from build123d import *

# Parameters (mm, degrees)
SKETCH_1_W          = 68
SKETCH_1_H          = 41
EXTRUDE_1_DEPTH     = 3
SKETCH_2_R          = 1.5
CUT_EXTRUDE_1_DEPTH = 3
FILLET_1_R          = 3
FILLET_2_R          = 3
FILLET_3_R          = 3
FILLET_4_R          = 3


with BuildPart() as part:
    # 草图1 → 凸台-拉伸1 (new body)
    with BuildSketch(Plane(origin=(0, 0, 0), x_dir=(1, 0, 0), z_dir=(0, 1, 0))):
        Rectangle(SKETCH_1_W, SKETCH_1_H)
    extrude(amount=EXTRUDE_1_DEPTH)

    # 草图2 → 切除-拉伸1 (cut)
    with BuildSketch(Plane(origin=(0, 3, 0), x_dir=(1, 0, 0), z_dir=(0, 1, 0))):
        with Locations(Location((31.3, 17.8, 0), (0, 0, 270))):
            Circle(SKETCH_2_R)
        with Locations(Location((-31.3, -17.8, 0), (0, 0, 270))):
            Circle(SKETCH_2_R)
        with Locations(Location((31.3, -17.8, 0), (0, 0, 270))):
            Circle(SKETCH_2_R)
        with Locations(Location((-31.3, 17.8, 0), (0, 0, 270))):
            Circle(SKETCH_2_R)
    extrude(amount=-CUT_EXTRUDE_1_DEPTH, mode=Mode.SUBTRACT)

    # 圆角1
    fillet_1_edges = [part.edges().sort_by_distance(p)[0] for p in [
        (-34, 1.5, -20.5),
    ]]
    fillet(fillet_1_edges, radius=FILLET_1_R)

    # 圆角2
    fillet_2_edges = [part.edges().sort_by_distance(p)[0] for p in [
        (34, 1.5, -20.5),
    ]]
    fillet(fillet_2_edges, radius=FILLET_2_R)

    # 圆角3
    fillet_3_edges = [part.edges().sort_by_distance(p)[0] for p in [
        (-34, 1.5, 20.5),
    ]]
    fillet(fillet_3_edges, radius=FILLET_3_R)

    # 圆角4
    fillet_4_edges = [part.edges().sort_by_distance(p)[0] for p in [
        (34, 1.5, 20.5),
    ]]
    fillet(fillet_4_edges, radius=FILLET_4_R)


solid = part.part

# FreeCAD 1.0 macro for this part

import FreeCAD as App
import Part
import Sketcher
from FreeCAD import Vector
Q = App.Units.Quantity


def edges_at(feature, points):
    """Names of the edges that pass closest to the given points."""
    edges = feature.Shape.Edges
    near = lambda p: min(range(len(edges)), key=lambda i: edges[i].distToShape(Part.Vertex(*p))[0])
    return sorted({f"Edge{near(p) + 1}" for p in points})


def add_polygon(sketch, points):
    """Adds a closed chain of lines whose ends are joined by coincident constraints."""
    first, n = sketch.GeometryCount, len(points)
    for a, b in zip(points, points[1:] + points[:1]):
        sketch.addGeometry(Part.LineSegment(App.Vector(*a, 0), App.Vector(*b, 0)), False)
    for i in range(n):
        sketch.addConstraint(Sketcher.Constraint("Coincident", first + i, 2, first + (i + 1) % n, 1))

doc = App.newDocument("Part")
params = doc.addObject("Spreadsheet::Sheet", "Params")
for row, (alias, value) in enumerate([
    ("sketch1_width", "68 mm"),
    ("sketch1_height", "41 mm"),
    ("pad1_length", "3 mm"),
    ("sketch2_diameter", "3 mm"),
    ("pocket1_length", "3 mm"),
    ("fillet_radius", "3 mm"),
    ("fillet2_radius", "3 mm"),
    ("fillet3_radius", "3 mm"),
    ("fillet4_radius", "3 mm"),
], start=1):
    params.set(f"A{row}", alias)
    params.set(f"B{row}", "=" + value)
    params.setAlias(f"B{row}", alias)

body = doc.addObject("PartDesign::Body", "Body")

# Sketch on XZ plane
sketch1 = body.newObject("Sketcher::SketchObject", "Sketch")
sketch1.AttachmentSupport = (doc.getObject("XZ_Plane"), [""])
sketch1.MapMode = "FlatFace"
add_polygon(sketch1, [(-34, -20.5), (-34, 20.5), (34, 20.5), (34, -20.5)])  # lines 0-3
sketch1.addConstraint(Sketcher.Constraint("Vertical", 0))
sketch1.addConstraint(Sketcher.Constraint("Horizontal", 1))
sketch1.addConstraint(Sketcher.Constraint("Vertical", 2))
sketch1.addConstraint(Sketcher.Constraint("Horizontal", 3))
sketch1.addConstraint(Sketcher.Constraint("Symmetric", 0, 2, 2, 2, -1, 1))
sketch1.addConstraint(Sketcher.Constraint("DistanceX", 1, 1, 1, 2, Q("68 mm")))
sketch1.addConstraint(Sketcher.Constraint("DistanceY", 0, 1, 0, 2, Q("41 mm")))
sketch1.setExpression("Constraints[9]", "Params.sketch1_width")
sketch1.setExpression("Constraints[10]", "Params.sketch1_height")
pad1 = body.newObject("PartDesign::Pad", "Pad")
pad1.Profile = sketch1
pad1.setExpression("Length", "Params.pad1_length")
pad1.Reversed = True

# Sketch on XZ plane
sketch2 = body.newObject("Sketcher::SketchObject", "Sketch001")
sketch2.AttachmentSupport = (doc.getObject("XZ_Plane"), [""])
sketch2.MapMode = "FlatFace"
sketch2.AttachmentOffset = App.Placement(Vector(0, 0, -3), App.Rotation())
sketch2.addGeometry(Part.Circle(Vector(31.3, -17.8, 0), Vector(0, 0, 1), 1.5), False)
sketch2.addGeometry(Part.Circle(Vector(-31.3, 17.8, 0), Vector(0, 0, 1), 1.5), False)
sketch2.addGeometry(Part.Circle(Vector(31.3, 17.8, 0), Vector(0, 0, 1), 1.5), False)
sketch2.addGeometry(Part.Circle(Vector(-31.3, -17.8, 0), Vector(0, 0, 1), 1.5), False)
sketch2.addConstraint(Sketcher.Constraint("Equal", 0, 1))
sketch2.addConstraint(Sketcher.Constraint("Equal", 1, 2))
sketch2.addConstraint(Sketcher.Constraint("Equal", 2, 3))
sketch2.addConstraint(Sketcher.Constraint("Symmetric", 0, 3, 1, 3, -1, 1))
sketch2.addConstraint(Sketcher.Constraint("Symmetric", 2, 3, 3, 3, -1, 1))
sketch2.addConstraint(Sketcher.Constraint("Symmetric", 1, 3, 2, 3, -2))
sketch2.addConstraint(Sketcher.Constraint("Diameter", 0, Q("3 mm")))
sketch2.addConstraint(Sketcher.Constraint("DistanceX", -1, 1, 0, 3, Q("31.3 mm")))
sketch2.addConstraint(Sketcher.Constraint("DistanceY", 0, 3, -1, 1, Q("17.8 mm")))
sketch2.setExpression("Constraints[6]", "Params.sketch2_diameter")
pocket1 = body.newObject("PartDesign::Pocket", "Pocket")
pocket1.Profile = sketch2
pocket1.setExpression("Length", "Params.pocket1_length")
pocket1.Reversed = True
doc.recompute()

fillet = body.newObject("PartDesign::Fillet", "Fillet")
fillet.Base = (pocket1, edges_at(pocket1, [(-34, 1.5, -20.5)]))
fillet.setExpression("Radius", "Params.fillet_radius")
doc.recompute()

fillet2 = body.newObject("PartDesign::Fillet", "Fillet001")
fillet2.Base = (fillet, edges_at(fillet, [(34, 1.5, -20.5)]))
fillet2.setExpression("Radius", "Params.fillet2_radius")
doc.recompute()

fillet3 = body.newObject("PartDesign::Fillet", "Fillet002")
fillet3.Base = (fillet2, edges_at(fillet2, [(-34, 1.5, 20.5)]))
fillet3.setExpression("Radius", "Params.fillet3_radius")
doc.recompute()

fillet4 = body.newObject("PartDesign::Fillet", "Fillet003")
fillet4.Base = (fillet3, edges_at(fillet3, [(34, 1.5, 20.5)]))
fillet4.setExpression("Radius", "Params.fillet4_radius")

doc.recompute()
